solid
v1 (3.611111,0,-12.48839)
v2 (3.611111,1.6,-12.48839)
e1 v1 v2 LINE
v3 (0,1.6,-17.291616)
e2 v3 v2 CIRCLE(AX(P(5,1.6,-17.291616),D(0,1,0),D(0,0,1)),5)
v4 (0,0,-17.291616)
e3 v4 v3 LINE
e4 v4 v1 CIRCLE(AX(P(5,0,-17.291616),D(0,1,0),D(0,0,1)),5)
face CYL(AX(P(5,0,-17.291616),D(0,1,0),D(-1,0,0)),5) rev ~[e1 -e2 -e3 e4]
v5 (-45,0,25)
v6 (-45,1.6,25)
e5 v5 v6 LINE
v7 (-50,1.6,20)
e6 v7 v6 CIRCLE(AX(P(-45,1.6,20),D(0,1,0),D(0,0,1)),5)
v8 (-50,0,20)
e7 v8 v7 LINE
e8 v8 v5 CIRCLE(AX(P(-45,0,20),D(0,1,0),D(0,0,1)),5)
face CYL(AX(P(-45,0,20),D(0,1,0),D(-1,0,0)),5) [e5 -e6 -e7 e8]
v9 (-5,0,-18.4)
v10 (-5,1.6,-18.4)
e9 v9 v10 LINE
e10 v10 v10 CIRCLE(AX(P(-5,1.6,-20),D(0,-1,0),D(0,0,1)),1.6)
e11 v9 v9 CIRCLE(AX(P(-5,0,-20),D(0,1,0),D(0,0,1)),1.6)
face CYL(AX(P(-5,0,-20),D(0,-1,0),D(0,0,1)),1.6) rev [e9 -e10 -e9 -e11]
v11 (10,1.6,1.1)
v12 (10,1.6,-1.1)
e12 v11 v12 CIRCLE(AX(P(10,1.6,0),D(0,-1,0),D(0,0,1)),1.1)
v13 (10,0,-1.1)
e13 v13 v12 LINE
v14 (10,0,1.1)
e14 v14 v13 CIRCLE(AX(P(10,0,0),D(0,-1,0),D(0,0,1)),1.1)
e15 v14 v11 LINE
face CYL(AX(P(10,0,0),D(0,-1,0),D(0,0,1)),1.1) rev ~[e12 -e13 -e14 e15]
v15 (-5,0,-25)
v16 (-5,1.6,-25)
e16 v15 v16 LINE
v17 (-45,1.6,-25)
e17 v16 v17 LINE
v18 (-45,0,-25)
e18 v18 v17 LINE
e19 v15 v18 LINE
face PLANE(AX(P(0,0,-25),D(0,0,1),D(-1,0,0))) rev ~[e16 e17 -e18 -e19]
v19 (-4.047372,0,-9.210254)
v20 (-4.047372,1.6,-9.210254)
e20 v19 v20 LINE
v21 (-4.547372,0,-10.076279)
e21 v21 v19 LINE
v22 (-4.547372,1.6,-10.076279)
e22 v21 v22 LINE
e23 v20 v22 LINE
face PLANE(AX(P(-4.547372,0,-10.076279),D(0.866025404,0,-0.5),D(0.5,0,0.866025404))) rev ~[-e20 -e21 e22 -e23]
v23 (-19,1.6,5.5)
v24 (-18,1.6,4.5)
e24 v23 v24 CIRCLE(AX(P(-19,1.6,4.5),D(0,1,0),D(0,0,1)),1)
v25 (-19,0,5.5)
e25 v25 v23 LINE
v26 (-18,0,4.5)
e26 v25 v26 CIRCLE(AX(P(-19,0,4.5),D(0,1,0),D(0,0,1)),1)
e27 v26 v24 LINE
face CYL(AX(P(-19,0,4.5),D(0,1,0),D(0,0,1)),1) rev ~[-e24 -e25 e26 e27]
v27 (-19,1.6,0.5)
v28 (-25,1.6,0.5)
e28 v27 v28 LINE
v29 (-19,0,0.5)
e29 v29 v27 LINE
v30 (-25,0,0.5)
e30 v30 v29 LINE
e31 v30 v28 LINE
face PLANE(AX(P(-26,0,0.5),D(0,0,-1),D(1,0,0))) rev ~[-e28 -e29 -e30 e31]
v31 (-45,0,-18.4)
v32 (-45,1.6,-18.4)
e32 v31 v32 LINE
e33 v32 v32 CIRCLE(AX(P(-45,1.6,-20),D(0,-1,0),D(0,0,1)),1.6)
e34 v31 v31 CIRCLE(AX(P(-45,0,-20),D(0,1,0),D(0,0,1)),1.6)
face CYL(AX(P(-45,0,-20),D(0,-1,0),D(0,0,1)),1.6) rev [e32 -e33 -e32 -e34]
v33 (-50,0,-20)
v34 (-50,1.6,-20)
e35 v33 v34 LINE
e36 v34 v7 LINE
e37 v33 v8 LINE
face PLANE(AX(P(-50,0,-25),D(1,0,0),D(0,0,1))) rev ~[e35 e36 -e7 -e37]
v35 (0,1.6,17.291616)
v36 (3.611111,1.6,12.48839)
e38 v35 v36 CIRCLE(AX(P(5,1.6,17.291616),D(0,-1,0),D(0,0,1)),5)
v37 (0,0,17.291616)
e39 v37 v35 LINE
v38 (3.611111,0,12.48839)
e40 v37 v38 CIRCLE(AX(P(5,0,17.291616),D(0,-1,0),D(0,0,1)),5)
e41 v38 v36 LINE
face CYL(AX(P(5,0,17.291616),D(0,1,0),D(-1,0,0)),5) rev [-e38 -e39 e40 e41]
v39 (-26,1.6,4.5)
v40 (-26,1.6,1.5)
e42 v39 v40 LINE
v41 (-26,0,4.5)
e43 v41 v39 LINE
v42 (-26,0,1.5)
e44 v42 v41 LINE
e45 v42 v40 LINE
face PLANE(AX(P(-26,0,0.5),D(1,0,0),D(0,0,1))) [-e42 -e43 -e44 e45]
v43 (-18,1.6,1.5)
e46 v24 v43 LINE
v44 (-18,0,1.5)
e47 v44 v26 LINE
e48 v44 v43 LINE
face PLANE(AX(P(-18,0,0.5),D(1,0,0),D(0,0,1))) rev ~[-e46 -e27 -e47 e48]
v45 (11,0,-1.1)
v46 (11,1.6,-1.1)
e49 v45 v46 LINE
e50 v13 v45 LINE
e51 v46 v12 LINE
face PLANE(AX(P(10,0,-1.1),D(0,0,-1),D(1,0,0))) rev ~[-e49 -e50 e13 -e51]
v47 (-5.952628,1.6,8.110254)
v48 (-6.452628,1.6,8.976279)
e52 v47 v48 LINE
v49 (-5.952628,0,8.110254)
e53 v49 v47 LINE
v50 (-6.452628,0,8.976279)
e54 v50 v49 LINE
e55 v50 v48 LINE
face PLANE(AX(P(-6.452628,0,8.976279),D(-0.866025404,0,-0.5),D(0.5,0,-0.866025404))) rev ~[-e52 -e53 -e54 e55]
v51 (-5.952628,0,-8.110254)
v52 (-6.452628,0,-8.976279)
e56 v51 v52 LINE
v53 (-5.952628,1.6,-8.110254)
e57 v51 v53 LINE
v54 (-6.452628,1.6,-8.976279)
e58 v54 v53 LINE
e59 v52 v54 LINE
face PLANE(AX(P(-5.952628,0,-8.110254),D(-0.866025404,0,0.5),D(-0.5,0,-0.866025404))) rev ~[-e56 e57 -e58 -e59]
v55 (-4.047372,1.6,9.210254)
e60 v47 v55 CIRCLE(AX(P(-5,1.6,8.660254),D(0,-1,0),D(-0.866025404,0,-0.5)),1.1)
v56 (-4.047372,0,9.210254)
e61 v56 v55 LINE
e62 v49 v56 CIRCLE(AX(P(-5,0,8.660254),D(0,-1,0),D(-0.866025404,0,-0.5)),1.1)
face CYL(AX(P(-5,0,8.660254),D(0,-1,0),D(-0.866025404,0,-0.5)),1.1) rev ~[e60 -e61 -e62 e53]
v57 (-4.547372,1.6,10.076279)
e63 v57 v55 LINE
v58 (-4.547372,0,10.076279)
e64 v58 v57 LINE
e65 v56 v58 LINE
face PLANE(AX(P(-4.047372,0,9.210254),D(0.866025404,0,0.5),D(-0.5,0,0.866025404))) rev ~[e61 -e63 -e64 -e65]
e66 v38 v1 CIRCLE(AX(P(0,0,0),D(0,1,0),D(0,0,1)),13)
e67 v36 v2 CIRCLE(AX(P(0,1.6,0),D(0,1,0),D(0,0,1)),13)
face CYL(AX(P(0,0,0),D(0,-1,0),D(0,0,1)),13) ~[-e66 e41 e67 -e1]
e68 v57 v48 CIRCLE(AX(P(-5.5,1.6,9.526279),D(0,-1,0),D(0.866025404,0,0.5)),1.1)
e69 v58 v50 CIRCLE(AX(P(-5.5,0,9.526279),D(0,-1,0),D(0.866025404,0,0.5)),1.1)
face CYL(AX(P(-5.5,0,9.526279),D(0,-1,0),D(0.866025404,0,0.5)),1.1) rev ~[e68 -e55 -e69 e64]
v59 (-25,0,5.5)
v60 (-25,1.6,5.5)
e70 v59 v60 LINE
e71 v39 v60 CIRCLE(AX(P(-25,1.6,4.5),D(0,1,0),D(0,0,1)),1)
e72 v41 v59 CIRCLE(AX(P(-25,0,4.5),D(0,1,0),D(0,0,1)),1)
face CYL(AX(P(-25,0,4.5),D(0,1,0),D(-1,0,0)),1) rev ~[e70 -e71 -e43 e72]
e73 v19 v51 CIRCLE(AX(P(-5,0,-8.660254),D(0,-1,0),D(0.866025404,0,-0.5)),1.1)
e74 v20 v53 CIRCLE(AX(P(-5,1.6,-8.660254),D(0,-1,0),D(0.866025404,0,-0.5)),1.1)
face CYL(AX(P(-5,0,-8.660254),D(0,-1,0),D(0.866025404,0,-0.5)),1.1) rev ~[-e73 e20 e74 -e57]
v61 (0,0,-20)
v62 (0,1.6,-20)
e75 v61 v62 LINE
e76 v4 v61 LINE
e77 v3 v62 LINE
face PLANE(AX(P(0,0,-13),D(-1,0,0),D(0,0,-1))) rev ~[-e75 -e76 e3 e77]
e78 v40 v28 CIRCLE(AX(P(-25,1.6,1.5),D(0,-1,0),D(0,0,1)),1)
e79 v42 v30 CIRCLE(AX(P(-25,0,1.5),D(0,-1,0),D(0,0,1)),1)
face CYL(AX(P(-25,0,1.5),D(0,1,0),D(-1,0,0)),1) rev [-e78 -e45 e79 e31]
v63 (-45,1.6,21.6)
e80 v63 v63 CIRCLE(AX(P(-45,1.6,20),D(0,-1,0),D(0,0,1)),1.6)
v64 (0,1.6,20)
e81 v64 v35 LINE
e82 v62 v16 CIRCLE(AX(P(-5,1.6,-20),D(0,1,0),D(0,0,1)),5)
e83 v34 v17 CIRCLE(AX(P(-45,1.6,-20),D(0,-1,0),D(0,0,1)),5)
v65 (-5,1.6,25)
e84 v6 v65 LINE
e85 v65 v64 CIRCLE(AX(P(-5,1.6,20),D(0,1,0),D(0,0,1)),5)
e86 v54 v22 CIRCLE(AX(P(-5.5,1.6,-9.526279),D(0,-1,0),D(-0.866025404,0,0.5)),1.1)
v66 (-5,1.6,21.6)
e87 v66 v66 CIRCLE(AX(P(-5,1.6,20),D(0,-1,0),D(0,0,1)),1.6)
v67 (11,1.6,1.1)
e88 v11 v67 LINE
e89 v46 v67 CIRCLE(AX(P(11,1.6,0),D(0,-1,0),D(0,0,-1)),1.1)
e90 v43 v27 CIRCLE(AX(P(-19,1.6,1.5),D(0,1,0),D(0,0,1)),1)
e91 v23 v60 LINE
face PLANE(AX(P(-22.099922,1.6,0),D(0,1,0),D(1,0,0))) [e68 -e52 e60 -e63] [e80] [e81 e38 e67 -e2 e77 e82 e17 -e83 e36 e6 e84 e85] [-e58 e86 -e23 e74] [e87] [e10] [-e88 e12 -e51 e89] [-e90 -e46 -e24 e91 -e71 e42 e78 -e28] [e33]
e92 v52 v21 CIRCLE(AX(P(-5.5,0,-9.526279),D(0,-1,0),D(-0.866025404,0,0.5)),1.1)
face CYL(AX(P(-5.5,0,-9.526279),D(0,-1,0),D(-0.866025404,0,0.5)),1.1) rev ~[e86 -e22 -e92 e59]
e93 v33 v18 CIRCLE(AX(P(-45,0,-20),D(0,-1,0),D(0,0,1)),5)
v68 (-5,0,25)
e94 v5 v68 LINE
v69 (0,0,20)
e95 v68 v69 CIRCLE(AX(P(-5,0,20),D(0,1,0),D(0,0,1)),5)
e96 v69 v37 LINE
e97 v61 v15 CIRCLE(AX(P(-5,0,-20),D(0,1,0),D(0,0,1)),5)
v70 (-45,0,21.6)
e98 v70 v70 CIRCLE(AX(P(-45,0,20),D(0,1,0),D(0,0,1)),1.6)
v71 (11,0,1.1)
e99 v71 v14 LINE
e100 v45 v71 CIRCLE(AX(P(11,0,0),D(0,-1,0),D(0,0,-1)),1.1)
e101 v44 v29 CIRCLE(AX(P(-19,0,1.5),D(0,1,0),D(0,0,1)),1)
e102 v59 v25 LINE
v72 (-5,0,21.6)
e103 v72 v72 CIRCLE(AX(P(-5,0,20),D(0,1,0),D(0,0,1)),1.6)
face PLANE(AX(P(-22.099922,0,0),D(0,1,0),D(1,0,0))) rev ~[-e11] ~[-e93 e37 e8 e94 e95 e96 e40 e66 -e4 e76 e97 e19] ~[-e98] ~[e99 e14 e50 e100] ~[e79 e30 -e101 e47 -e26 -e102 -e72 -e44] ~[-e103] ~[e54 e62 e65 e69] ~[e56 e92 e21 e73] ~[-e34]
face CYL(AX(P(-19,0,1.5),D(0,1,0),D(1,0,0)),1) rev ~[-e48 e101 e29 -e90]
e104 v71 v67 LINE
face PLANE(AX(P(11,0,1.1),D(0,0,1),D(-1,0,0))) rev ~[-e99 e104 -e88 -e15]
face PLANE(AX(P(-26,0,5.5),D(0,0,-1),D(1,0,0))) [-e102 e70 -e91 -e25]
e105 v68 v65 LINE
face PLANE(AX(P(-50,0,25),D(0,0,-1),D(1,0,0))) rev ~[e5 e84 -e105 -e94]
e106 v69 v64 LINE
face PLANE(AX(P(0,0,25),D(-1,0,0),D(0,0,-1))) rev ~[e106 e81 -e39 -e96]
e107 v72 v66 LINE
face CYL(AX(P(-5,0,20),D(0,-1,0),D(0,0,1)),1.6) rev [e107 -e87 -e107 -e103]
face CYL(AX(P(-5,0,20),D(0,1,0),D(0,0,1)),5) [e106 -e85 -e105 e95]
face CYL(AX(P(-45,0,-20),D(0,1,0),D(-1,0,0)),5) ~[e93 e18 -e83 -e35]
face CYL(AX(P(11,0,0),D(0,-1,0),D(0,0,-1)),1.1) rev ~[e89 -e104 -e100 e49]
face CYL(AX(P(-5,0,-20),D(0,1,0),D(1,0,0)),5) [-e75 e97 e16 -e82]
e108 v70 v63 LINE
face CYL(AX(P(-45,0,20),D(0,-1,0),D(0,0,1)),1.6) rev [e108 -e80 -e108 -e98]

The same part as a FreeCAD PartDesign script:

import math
import FreeCAD as App
import Part
import Sketcher

V = App.Vector
Q = App.Units.Quantity


def edges_at(feature, points):
    """Names of the edges that pass closest to the given points."""
    edges = feature.Shape.Edges
    near = lambda p: min(range(len(edges)), key=lambda i: edges[i].distToShape(Part.Vertex(*p))[0])
    return sorted({f"Edge{near(p) + 1}" for p in points})


def add_polygon(sketch, points):
    """Adds a closed chain of lines whose ends are joined by coincident constraints."""
    first, n = sketch.GeometryCount, len(points)
    for a, b in zip(points, points[1:] + points[:1]):
        sketch.addGeometry(Part.LineSegment(App.Vector(*a, 0), App.Vector(*b, 0)), False)
    for i in range(n):
        sketch.addConstraint(Sketcher.Constraint("Coincident", first + i, 2, first + (i + 1) % n, 1))

doc = App.newDocument("Part")
body = doc.addObject("PartDesign::Body", "Body")

# Sketch on XZ plane
sketch1 = body.newObject("Sketcher::SketchObject", "Sketch")
sketch1.AttachmentSupport = (doc.getObject("XZ_Plane"), [""])
sketch1.MapMode = "FlatFace"
sketch1.addGeometry(Part.LineSegment(V(-50, -25, 0), V(-50, 25, 0)), False)
sketch1.addGeometry(Part.LineSegment(V(-50, 25, 0), V(0, 25, 0)), False)
sketch1.addGeometry(Part.LineSegment(V(0, 25, 0), V(0, 13, 0)), False)
sketch1.addGeometry(Part.ArcOfCircle(Part.Circle(V(0, 0, 0), V(0, 0, 1), 13), math.radians(-90), math.radians(90)), False)
sketch1.addGeometry(Part.LineSegment(V(0, -13, 0), V(0, -25, 0)), False)
sketch1.addGeometry(Part.LineSegment(V(0, -25, 0), V(-50, -25, 0)), False)
sketch1.addConstraint(Sketcher.Constraint("Coincident", 0, 2, 1, 1))
sketch1.addConstraint(Sketcher.Constraint("Coincident", 1, 2, 2, 1))
sketch1.addConstraint(Sketcher.Constraint("Coincident", 2, 2, 3, 2))
sketch1.addConstraint(Sketcher.Constraint("Coincident", 3, 1, 4, 1))
sketch1.addConstraint(Sketcher.Constraint("Coincident", 4, 2, 5, 1))
sketch1.addConstraint(Sketcher.Constraint("Coincident", 5, 2, 0, 1))
sketch1.addConstraint(Sketcher.Constraint("Vertical", 0))
sketch1.addConstraint(Sketcher.Constraint("Horizontal", 1))
sketch1.addConstraint(Sketcher.Constraint("Vertical", 2))
sketch1.addConstraint(Sketcher.Constraint("Vertical", 4))
sketch1.addConstraint(Sketcher.Constraint("Horizontal", 5))
sketch1.addConstraint(Sketcher.Constraint("Coincident", 3, 3, -1, 1))
sketch1.addConstraint(Sketcher.Constraint("Symmetric", 1, 2, 4, 2, -1, 1))
sketch1.addConstraint(Sketcher.Constraint("PointOnObject", 1, 2, -2))
sketch1.addConstraint(Sketcher.Constraint("Equal", 5, 0))
sketch1.addConstraint(Sketcher.Constraint("Radius", 3, 13.0))
sketch1.addConstraint(Sketcher.Constraint("DistanceX", 1, 1, 1, 2, 50.0))
pad1 = body.newObject("PartDesign::Pad", "Pad")
pad1.Profile = sketch1
pad1.Length = 1.6
pad1.Reversed = True
doc.recompute()

fillet = body.newObject("PartDesign::Fillet", "Fillet")
fillet.Base = (pad1, edges_at(pad1, [
    (0, 0.8, 25),
    (-50, 0.8, 25),
    (-50, 0.8, -25),
    (0, 0.8, -25),
]))
fillet.Radius = 5

# Sketch on XZ plane
sketch2 = body.newObject("Sketcher::SketchObject", "Sketch001")
sketch2.AttachmentSupport = (doc.getObject("XZ_Plane"), [""])
sketch2.MapMode = "FlatFace"
sketch2.addGeometry(Part.LineSegment(V(-5.952628, 8.110254, 0), V(-6.452628, 8.976279, 0)), False)
sketch2.addGeometry(Part.ArcOfCircle(Part.Circle(V(-5.5, 9.526279, 0), V(0, 0, 1), 1.1), math.radians(30), math.radians(210)), False)
sketch2.addGeometry(Part.LineSegment(V(-4.547372, 10.076279, 0), V(-4.047372, 9.210254, 0)), False)
sketch2.addGeometry(Part.ArcOfCircle(Part.Circle(V(-5, 8.660254, 0), V(0, 0, 1), 1.1), math.radians(-150), math.radians(30)), False)
sketch2.addGeometry(Part.LineSegment(V(11, -1.1, 0), V(10, -1.1, 0)), False)
sketch2.addGeometry(Part.ArcOfCircle(Part.Circle(V(10, 0, 0), V(0, 0, 1), 1.1), math.radians(90), math.radians(270)), False)
sketch2.addGeometry(Part.LineSegment(V(10, 1.1, 0), V(11, 1.1, 0)), False)
sketch2.addGeometry(Part.ArcOfCircle(Part.Circle(V(11, 0, 0), V(0, 0, 1), 1.1), math.radians(-90), math.radians(90)), False)
sketch2.addGeometry(Part.LineSegment(V(-6.452628, -8.976279, 0), V(-5.952628, -8.110254, 0)), False)
sketch2.addGeometry(Part.ArcOfCircle(Part.Circle(V(-5, -8.660254, 0), V(0, 0, 1), 1.1), math.radians(-30), math.radians(150)), False)
sketch2.addGeometry(Part.LineSegment(V(-4.047372, -9.210254, 0), V(-4.547372, -10.076279, 0)), False)
sketch2.addGeometry(Part.ArcOfCircle(Part.Circle(V(-5.5, -9.526279, 0), V(0, 0, 1), 1.1), math.radians(150), math.radians(330)), False)
sketch2.addConstraint(Sketcher.Constraint("Tangent", 0, 2, 1, 2))
sketch2.addConstraint(Sketcher.Constraint("Tangent", 1, 1, 2, 1))
sketch2.addConstraint(Sketcher.Constraint("Tangent", 2, 2, 3, 2))
sketch2.addConstraint(Sketcher.Constraint("Tangent", 3, 1, 0, 1))
sketch2.addConstraint(Sketcher.Constraint("Tangent", 4, 2, 5, 2))
sketch2.addConstraint(Sketcher.Constraint("Tangent", 5, 1, 6, 1))
sketch2.addConstraint(Sketcher.Constraint("Tangent", 6, 2, 7, 2))
sketch2.addConstraint(Sketcher.Constraint("Tangent", 7, 1, 4, 1))
sketch2.addConstraint(Sketcher.Constraint("Tangent", 8, 2, 9, 2))
sketch2.addConstraint(Sketcher.Constraint("Tangent", 9, 1, 10, 1))
sketch2.addConstraint(Sketcher.Constraint("Tangent", 10, 2, 11, 2))
sketch2.addConstraint(Sketcher.Constraint("Tangent", 11, 1, 8, 1))
sketch2.addConstraint(Sketcher.Constraint("Horizontal", 4))
sketch2.addConstraint(Sketcher.Constraint("Horizontal", 6))
sketch2.addConstraint(Sketcher.Constraint("Equal", 1, 3))
sketch2.addConstraint(Sketcher.Constraint("Equal", 3, 5))
sketch2.addConstraint(Sketcher.Constraint("Equal", 7, 9))
sketch2.addConstraint(Sketcher.Constraint("Equal", 9, 11))
sketch2.addConstraint(Sketcher.Constraint("Symmetric", 3, 3, 9, 3, -1))
sketch2.addConstraint(Sketcher.Constraint("Symmetric", 1, 3, 11, 3, -1))
sketch2.addConstraint(Sketcher.Constraint("PointOnObject", 5, 3, -1))
sketch2.addConstraint(Sketcher.Constraint("Radius", 1, 1.1))
sketch2.addConstraint(Sketcher.Constraint("DistanceX", 4, 2, 4, 1, 1.0))
sketch2.addConstraint(Sketcher.Constraint("Angle", 0, Q("120 deg")))
sketch2.addConstraint(Sketcher.Constraint("Distance", 0, 1.0))
sketch2.addConstraint(Sketcher.Constraint("DistanceX", 3, 3, -1, 1, 5.0))
sketch2.addConstraint(Sketcher.Constraint("DistanceX", -1, 1, 5, 3, 10.0))
sketch2.addConstraint(Sketcher.Constraint("DistanceY", -1, 1, 1, 3, 9.526279))
pocket1 = body.newObject("PartDesign::Pocket", "Pocket")
pocket1.Profile = sketch2
pocket1.Type = "ThroughAll"

# Sketch on XZ plane
sketch3 = body.newObject("Sketcher::SketchObject", "Sketch002")
sketch3.AttachmentSupport = (doc.getObject("XZ_Plane"), [""])
sketch3.MapMode = "FlatFace"
sketch3.addGeometry(Part.Circle(V(-45, -20, 0), V(0, 0, 1), 1.6), False)
sketch3.addGeometry(Part.Circle(V(-5, -20, 0), V(0, 0, 1), 1.6), False)
sketch3.addGeometry(Part.Circle(V(-5, 20, 0), V(0, 0, 1), 1.6), False)
sketch3.addGeometry(Part.Circle(V(-45, 20, 0), V(0, 0, 1), 1.6), False)
sketch3.addConstraint(Sketcher.Constraint("Equal", 0, 1))
sketch3.addConstraint(Sketcher.Constraint("Equal", 1, 2))
sketch3.addConstraint(Sketcher.Constraint("Equal", 2, 3))
sketch3.addConstraint(Sketcher.Constraint("Symmetric", 1, 3, 2, 3, -1))
sketch3.addConstraint(Sketcher.Constraint("Symmetric", 0, 3, 3, 3, -1))
sketch3.addConstraint(Sketcher.Constraint("Horizontal", 0, 3, 1, 3))
sketch3.addConstraint(Sketcher.Constraint("Diameter", 0, 3.2))
sketch3.addConstraint(Sketcher.Constraint("DistanceX", 0, 3, -1, 1, 45.0))
sketch3.addConstraint(Sketcher.Constraint("DistanceY", 0, 3, -1, 1, 20.0))
sketch3.addConstraint(Sketcher.Constraint("DistanceX", 1, 3, -1, 1, 5.0))
pocket2 = body.newObject("PartDesign::Pocket", "Pocket001")
pocket2.Profile = sketch3
pocket2.Type = "ThroughAll"
doc.recompute()

fillet2 = body.newObject("PartDesign::Fillet", "Fillet001")
fillet2.Base = (pocket2, edges_at(pocket2, [(0, 0.8, 13), (0, 0.8, -13)]))
fillet2.Radius = 5

# Sketch on XZ plane
sketch4 = body.newObject("Sketcher::SketchObject", "Sketch003")
sketch4.AttachmentSupport = (doc.getObject("XZ_Plane"), [""])
sketch4.MapMode = "FlatFace"
add_polygon(sketch4, [(-26, 5.5), (-26, 0.5), (-18, 0.5), (-18, 5.5)])  # lines 0-3
sketch4.addConstraint(Sketcher.Constraint("Vertical", 0))
sketch4.addConstraint(Sketcher.Constraint("Horizontal", 1))
sketch4.addConstraint(Sketcher.Constraint("Vertical", 2))
sketch4.addConstraint(Sketcher.Constraint("Horizontal", 3))
sketch4.addConstraint(Sketcher.Constraint("DistanceX", 1, 1, 1, 2, 8.0))
sketch4.addConstraint(Sketcher.Constraint("DistanceY", 0, 2, 0, 1, 5.0))
sketch4.addConstraint(Sketcher.Constraint("DistanceX", 0, 2, -1, 1, 26.0))
sketch4.addConstraint(Sketcher.Constraint("DistanceY", -1, 1, 0, 2, 0.5))
pocket3 = body.newObject("PartDesign::Pocket", "Pocket002")
pocket3.Profile = sketch4
pocket3.Type = "ThroughAll"
doc.recompute()

fillet3 = body.newObject("PartDesign::Fillet", "Fillet002")
fillet3.Base = (pocket3, edges_at(pocket3, [
    (-26, 0.8, 0.5),
    (-26, 0.8, 5.5),
    (-18, 0.8, 5.5),
    (-18, 0.8, 0.5),
]))
fillet3.Radius = 1

doc.recompute()
